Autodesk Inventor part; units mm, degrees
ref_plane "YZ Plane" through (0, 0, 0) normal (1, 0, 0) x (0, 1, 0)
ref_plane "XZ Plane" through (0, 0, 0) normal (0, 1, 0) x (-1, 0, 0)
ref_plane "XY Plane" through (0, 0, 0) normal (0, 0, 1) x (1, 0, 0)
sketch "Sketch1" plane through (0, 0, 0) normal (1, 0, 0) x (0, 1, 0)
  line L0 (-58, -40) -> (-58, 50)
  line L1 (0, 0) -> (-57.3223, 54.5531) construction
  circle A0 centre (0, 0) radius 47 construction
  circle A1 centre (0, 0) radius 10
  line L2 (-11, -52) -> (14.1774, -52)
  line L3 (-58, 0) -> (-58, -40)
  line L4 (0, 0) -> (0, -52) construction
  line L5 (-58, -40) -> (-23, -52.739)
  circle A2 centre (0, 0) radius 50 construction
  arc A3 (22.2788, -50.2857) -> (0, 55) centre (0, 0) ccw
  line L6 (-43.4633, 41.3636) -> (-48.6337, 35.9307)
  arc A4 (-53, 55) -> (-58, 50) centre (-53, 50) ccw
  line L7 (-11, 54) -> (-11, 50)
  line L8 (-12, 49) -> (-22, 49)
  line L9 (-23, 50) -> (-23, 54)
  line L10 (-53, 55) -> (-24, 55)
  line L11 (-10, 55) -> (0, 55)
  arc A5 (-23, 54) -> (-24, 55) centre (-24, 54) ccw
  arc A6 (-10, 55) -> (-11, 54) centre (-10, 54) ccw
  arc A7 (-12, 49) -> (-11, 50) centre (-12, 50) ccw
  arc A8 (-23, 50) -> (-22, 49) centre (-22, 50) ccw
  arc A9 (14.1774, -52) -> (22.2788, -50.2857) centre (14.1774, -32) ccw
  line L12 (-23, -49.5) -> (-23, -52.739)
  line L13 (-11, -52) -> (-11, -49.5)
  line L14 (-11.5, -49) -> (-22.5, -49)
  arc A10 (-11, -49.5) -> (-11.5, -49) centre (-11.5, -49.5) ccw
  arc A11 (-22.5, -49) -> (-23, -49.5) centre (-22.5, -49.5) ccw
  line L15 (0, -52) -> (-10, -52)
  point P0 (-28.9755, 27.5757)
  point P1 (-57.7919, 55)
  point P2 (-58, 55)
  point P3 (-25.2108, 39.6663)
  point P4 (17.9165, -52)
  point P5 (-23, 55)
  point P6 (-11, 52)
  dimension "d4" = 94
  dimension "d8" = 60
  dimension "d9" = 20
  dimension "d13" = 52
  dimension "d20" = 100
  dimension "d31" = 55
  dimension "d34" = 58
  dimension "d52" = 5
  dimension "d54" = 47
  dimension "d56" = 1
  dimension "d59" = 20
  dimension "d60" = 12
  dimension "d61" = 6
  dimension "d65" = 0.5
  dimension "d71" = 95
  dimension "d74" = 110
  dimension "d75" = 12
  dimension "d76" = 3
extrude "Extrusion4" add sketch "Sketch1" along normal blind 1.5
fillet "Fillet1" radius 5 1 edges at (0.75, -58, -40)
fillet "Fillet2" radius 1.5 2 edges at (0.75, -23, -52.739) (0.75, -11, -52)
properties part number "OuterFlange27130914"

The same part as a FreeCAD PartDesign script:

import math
import FreeCAD as App
import Part
import Sketcher
Q = App.Units.Quantity


def edges_at(feature, points):
    """Names of the edges that pass closest to the given points."""
    edges = feature.Shape.Edges
    near = lambda p: min(range(len(edges)), key=lambda i: edges[i].distToShape(Part.Vertex(*p))[0])
    return sorted({f"Edge{near(p) + 1}" for p in points})

doc = App.newDocument("Part")
body = doc.addObject("PartDesign::Body", "Body")

# Sketch on YZ plane
sketch1 = doc.addObject("Sketcher::SketchObject", "Sketch")
body.addObject(sketch1)
sketch1.AttachmentSupport = (doc.YZ_Plane, [""])
sketch1.MapMode = "FlatFace"
sketch1.addGeometry(Part.LineSegment(App.Vector(-58, 50, 0), App.Vector(-58, -40, 0)), False)
sketch1.addGeometry(Part.LineSegment(App.Vector(-58, -40, 0), App.Vector(-23, -52.7, 0)), False)
sketch1.addGeometry(Part.LineSegment(App.Vector(-23, -52.7, 0), App.Vector(-23, -49.5, 0)), False)
sketch1.addGeometry(Part.ArcOfCircle(Part.Circle(App.Vector(-22.5, -49.5, 0), App.Vector(0, 0, 1), 0.5), math.radians(90), math.radians(180)), False)
sketch1.addGeometry(Part.LineSegment(App.Vector(-22.5, -49, 0), App.Vector(-11.5, -49, 0)), False)
sketch1.addGeometry(Part.ArcOfCircle(Part.Circle(App.Vector(-11.5, -49.5, 0), App.Vector(0, 0, 1), 0.5), math.radians(0), math.radians(90)), False)
sketch1.addGeometry(Part.LineSegment(App.Vector(-11, -49.5, 0), App.Vector(-11, -52, 0)), False)
sketch1.addGeometry(Part.LineSegment(App.Vector(-11, -52, 0), App.Vector(14.2, -52, 0)), False)
sketch1.addGeometry(Part.ArcOfCircle(Part.Circle(App.Vector(14.2, -32, 0), App.Vector(0, 0, 1), 20), math.radians(-90), math.radians(-66)), False)
sketch1.addGeometry(Part.ArcOfCircle(Part.Circle(App.Vector(0, 0, 0), App.Vector(0, 0, 1), 55), math.radians(-66), math.radians(90)), False)
sketch1.addGeometry(Part.LineSegment(App.Vector(0, 55, 0), App.Vector(-10, 55, 0)), False)
sketch1.addGeometry(Part.ArcOfCircle(Part.Circle(App.Vector(-10, 54, 0), App.Vector(0, 0, 1), 1), math.radians(90), math.radians(180)), False)
sketch1.addGeometry(Part.LineSegment(App.Vector(-11, 54, 0), App.Vector(-11, 50, 0)), False)
sketch1.addGeometry(Part.ArcOfCircle(Part.Circle(App.Vector(-12, 50, 0), App.Vector(0, 0, 1), 1), math.radians(-90), math.radians(0)), False)
sketch1.addGeometry(Part.LineSegment(App.Vector(-12, 49, 0), App.Vector(-22, 49, 0)), False)
sketch1.addGeometry(Part.ArcOfCircle(Part.Circle(App.Vector(-22, 50, 0), App.Vector(0, 0, 1), 1), math.radians(180), math.radians(270)), False)
sketch1.addGeometry(Part.LineSegment(App.Vector(-23, 50, 0), App.Vector(-23, 54, 0)), False)
sketch1.addGeometry(Part.ArcOfCircle(Part.Circle(App.Vector(-24, 54, 0), App.Vector(0, 0, 1), 1), math.radians(0), math.radians(90)), False)
sketch1.addGeometry(Part.LineSegment(App.Vector(-24, 55, 0), App.Vector(-53, 55, 0)), False)
sketch1.addGeometry(Part.ArcOfCircle(Part.Circle(App.Vector(-53, 50, 0), App.Vector(0, 0, 1), 5), math.radians(90), math.radians(180)), False)
sketch1.addGeometry(Part.Circle(App.Vector(0, 0, 0), App.Vector(0, 0, 1), 10), False)
sketch1.addConstraint(Sketcher.Constraint("Coincident", 0, 2, 1, 1))
sketch1.addConstraint(Sketcher.Constraint("Coincident", 1, 2, 2, 1))
sketch1.addConstraint(Sketcher.Constraint("Tangent", 2, 2, 3, 2))
sketch1.addConstraint(Sketcher.Constraint("Tangent", 3, 1, 4, 1))
sketch1.addConstraint(Sketcher.Constraint("Tangent", 4, 2, 5, 2))
sketch1.addConstraint(Sketcher.Constraint("Tangent", 5, 1, 6, 1))
sketch1.addConstraint(Sketcher.Constraint("Coincident", 6, 2, 7, 1))
sketch1.addConstraint(Sketcher.Constraint("Tangent", 7, 2, 8, 1))
sketch1.addConstraint(Sketcher.Constraint("Tangent", 8, 2, 9, 1))
sketch1.addConstraint(Sketcher.Constraint("Tangent", 9, 2, 10, 1))
sketch1.addConstraint(Sketcher.Constraint("Tangent", 10, 2, 11, 1))
sketch1.addConstraint(Sketcher.Constraint("Tangent", 11, 2, 12, 1))
sketch1.addConstraint(Sketcher.Constraint("Tangent", 12, 2, 13, 2))
sketch1.addConstraint(Sketcher.Constraint("Tangent", 13, 1, 14, 1))
sketch1.addConstraint(Sketcher.Constraint("Tangent", 14, 2, 15, 2))
sketch1.addConstraint(Sketcher.Constraint("Tangent", 15, 1, 16, 1))
sketch1.addConstraint(Sketcher.Constraint("Tangent", 16, 2, 17, 1))
sketch1.addConstraint(Sketcher.Constraint("Tangent", 17, 2, 18, 1))
sketch1.addConstraint(Sketcher.Constraint("Tangent", 18, 2, 19, 1))
sketch1.addConstraint(Sketcher.Constraint("Tangent", 19, 2, 0, 1))
sketch1.addConstraint(Sketcher.Constraint("Vertical", 0))
sketch1.addConstraint(Sketcher.Constraint("Vertical", 2))
sketch1.addConstraint(Sketcher.Constraint("Horizontal", 4))
sketch1.addConstraint(Sketcher.Constraint("Vertical", 6))
sketch1.addConstraint(Sketcher.Constraint("Horizontal", 7))
sketch1.addConstraint(Sketcher.Constraint("Horizontal", 10))
sketch1.addConstraint(Sketcher.Constraint("Vertical", 12))
sketch1.addConstraint(Sketcher.Constraint("Horizontal", 14))
sketch1.addConstraint(Sketcher.Constraint("Vertical", 16))
sketch1.addConstraint(Sketcher.Constraint("Horizontal", 18))
sketch1.addConstraint(Sketcher.Constraint("Coincident", 9, 3, -1, 1))
sketch1.addConstraint(Sketcher.Constraint("Coincident", 20, 3, -1, 1))
sketch1.addConstraint(Sketcher.Constraint("Equal", 3, 5))
sketch1.addConstraint(Sketcher.Constraint("Equal", 11, 13))
sketch1.addConstraint(Sketcher.Constraint("Equal", 13, 15))
sketch1.addConstraint(Sketcher.Constraint("Equal", 15, 17))
sketch1.addConstraint(Sketcher.Constraint("Horizontal", 11, 3, 17, 3))
sketch1.addConstraint(Sketcher.Constraint("Horizontal", 15, 3, 19, 3))
sketch1.addConstraint(Sketcher.Constraint("Vertical", 6, 2, 11, 2))
sketch1.addConstraint(Sketcher.Constraint("Vertical", 2, 2, 15, 1))
sketch1.addConstraint(Sketcher.Constraint("Equal", 10, 14))
sketch1.addConstraint(Sketcher.Constraint("Diameter", 20, 20.0))
sketch1.addConstraint(Sketcher.Constraint("Radius", 8, 20.0))
sketch1.addConstraint(Sketcher.Constraint("Radius", 9, 55.0))
sketch1.addConstraint(Sketcher.Constraint("Radius", 11, 1.0))
sketch1.addConstraint(Sketcher.Constraint("Radius", 19, 5.0))
sketch1.addConstraint(Sketcher.Constraint("Radius", 3, 0.5))
sketch1.addConstraint(Sketcher.Constraint("Angle", 1, Q("-20 deg")))
sketch1.addConstraint(Sketcher.Constraint("DistanceX", 13, 3, -1, 1, 12.0))
sketch1.addConstraint(Sketcher.Constraint("DistanceX", 0, 2, -1, 1, 58.0))
sketch1.addConstraint(Sketcher.Constraint("DistanceY", 6, 2, -1, 1, 52.0))
sketch1.addConstraint(Sketcher.Constraint("DistanceY", 6, 2, 4, 2, 3.0))
sketch1.addConstraint(Sketcher.Constraint("DistanceY", 0, 2, 0, 1, 90.0))
pad1 = doc.addObject("PartDesign::Pad", "Pad")
body.addObject(pad1)
pad1.Profile = sketch1
pad1.Length = 1.5
doc.recompute()

fillet = doc.addObject("PartDesign::Fillet", "Fillet")
body.addObject(fillet)
fillet.Base = (pad1, edges_at(pad1, [(0.75, -58, -40)]))
fillet.Radius = 5
doc.recompute()

fillet2 = doc.addObject("PartDesign::Fillet", "Fillet001")
body.addObject(fillet2)
fillet2.Base = (fillet, edges_at(fillet, [(0.75, -23, -52.739), (0.75, -11, -52)]))
fillet2.Radius = 1.5

doc.recompute()
